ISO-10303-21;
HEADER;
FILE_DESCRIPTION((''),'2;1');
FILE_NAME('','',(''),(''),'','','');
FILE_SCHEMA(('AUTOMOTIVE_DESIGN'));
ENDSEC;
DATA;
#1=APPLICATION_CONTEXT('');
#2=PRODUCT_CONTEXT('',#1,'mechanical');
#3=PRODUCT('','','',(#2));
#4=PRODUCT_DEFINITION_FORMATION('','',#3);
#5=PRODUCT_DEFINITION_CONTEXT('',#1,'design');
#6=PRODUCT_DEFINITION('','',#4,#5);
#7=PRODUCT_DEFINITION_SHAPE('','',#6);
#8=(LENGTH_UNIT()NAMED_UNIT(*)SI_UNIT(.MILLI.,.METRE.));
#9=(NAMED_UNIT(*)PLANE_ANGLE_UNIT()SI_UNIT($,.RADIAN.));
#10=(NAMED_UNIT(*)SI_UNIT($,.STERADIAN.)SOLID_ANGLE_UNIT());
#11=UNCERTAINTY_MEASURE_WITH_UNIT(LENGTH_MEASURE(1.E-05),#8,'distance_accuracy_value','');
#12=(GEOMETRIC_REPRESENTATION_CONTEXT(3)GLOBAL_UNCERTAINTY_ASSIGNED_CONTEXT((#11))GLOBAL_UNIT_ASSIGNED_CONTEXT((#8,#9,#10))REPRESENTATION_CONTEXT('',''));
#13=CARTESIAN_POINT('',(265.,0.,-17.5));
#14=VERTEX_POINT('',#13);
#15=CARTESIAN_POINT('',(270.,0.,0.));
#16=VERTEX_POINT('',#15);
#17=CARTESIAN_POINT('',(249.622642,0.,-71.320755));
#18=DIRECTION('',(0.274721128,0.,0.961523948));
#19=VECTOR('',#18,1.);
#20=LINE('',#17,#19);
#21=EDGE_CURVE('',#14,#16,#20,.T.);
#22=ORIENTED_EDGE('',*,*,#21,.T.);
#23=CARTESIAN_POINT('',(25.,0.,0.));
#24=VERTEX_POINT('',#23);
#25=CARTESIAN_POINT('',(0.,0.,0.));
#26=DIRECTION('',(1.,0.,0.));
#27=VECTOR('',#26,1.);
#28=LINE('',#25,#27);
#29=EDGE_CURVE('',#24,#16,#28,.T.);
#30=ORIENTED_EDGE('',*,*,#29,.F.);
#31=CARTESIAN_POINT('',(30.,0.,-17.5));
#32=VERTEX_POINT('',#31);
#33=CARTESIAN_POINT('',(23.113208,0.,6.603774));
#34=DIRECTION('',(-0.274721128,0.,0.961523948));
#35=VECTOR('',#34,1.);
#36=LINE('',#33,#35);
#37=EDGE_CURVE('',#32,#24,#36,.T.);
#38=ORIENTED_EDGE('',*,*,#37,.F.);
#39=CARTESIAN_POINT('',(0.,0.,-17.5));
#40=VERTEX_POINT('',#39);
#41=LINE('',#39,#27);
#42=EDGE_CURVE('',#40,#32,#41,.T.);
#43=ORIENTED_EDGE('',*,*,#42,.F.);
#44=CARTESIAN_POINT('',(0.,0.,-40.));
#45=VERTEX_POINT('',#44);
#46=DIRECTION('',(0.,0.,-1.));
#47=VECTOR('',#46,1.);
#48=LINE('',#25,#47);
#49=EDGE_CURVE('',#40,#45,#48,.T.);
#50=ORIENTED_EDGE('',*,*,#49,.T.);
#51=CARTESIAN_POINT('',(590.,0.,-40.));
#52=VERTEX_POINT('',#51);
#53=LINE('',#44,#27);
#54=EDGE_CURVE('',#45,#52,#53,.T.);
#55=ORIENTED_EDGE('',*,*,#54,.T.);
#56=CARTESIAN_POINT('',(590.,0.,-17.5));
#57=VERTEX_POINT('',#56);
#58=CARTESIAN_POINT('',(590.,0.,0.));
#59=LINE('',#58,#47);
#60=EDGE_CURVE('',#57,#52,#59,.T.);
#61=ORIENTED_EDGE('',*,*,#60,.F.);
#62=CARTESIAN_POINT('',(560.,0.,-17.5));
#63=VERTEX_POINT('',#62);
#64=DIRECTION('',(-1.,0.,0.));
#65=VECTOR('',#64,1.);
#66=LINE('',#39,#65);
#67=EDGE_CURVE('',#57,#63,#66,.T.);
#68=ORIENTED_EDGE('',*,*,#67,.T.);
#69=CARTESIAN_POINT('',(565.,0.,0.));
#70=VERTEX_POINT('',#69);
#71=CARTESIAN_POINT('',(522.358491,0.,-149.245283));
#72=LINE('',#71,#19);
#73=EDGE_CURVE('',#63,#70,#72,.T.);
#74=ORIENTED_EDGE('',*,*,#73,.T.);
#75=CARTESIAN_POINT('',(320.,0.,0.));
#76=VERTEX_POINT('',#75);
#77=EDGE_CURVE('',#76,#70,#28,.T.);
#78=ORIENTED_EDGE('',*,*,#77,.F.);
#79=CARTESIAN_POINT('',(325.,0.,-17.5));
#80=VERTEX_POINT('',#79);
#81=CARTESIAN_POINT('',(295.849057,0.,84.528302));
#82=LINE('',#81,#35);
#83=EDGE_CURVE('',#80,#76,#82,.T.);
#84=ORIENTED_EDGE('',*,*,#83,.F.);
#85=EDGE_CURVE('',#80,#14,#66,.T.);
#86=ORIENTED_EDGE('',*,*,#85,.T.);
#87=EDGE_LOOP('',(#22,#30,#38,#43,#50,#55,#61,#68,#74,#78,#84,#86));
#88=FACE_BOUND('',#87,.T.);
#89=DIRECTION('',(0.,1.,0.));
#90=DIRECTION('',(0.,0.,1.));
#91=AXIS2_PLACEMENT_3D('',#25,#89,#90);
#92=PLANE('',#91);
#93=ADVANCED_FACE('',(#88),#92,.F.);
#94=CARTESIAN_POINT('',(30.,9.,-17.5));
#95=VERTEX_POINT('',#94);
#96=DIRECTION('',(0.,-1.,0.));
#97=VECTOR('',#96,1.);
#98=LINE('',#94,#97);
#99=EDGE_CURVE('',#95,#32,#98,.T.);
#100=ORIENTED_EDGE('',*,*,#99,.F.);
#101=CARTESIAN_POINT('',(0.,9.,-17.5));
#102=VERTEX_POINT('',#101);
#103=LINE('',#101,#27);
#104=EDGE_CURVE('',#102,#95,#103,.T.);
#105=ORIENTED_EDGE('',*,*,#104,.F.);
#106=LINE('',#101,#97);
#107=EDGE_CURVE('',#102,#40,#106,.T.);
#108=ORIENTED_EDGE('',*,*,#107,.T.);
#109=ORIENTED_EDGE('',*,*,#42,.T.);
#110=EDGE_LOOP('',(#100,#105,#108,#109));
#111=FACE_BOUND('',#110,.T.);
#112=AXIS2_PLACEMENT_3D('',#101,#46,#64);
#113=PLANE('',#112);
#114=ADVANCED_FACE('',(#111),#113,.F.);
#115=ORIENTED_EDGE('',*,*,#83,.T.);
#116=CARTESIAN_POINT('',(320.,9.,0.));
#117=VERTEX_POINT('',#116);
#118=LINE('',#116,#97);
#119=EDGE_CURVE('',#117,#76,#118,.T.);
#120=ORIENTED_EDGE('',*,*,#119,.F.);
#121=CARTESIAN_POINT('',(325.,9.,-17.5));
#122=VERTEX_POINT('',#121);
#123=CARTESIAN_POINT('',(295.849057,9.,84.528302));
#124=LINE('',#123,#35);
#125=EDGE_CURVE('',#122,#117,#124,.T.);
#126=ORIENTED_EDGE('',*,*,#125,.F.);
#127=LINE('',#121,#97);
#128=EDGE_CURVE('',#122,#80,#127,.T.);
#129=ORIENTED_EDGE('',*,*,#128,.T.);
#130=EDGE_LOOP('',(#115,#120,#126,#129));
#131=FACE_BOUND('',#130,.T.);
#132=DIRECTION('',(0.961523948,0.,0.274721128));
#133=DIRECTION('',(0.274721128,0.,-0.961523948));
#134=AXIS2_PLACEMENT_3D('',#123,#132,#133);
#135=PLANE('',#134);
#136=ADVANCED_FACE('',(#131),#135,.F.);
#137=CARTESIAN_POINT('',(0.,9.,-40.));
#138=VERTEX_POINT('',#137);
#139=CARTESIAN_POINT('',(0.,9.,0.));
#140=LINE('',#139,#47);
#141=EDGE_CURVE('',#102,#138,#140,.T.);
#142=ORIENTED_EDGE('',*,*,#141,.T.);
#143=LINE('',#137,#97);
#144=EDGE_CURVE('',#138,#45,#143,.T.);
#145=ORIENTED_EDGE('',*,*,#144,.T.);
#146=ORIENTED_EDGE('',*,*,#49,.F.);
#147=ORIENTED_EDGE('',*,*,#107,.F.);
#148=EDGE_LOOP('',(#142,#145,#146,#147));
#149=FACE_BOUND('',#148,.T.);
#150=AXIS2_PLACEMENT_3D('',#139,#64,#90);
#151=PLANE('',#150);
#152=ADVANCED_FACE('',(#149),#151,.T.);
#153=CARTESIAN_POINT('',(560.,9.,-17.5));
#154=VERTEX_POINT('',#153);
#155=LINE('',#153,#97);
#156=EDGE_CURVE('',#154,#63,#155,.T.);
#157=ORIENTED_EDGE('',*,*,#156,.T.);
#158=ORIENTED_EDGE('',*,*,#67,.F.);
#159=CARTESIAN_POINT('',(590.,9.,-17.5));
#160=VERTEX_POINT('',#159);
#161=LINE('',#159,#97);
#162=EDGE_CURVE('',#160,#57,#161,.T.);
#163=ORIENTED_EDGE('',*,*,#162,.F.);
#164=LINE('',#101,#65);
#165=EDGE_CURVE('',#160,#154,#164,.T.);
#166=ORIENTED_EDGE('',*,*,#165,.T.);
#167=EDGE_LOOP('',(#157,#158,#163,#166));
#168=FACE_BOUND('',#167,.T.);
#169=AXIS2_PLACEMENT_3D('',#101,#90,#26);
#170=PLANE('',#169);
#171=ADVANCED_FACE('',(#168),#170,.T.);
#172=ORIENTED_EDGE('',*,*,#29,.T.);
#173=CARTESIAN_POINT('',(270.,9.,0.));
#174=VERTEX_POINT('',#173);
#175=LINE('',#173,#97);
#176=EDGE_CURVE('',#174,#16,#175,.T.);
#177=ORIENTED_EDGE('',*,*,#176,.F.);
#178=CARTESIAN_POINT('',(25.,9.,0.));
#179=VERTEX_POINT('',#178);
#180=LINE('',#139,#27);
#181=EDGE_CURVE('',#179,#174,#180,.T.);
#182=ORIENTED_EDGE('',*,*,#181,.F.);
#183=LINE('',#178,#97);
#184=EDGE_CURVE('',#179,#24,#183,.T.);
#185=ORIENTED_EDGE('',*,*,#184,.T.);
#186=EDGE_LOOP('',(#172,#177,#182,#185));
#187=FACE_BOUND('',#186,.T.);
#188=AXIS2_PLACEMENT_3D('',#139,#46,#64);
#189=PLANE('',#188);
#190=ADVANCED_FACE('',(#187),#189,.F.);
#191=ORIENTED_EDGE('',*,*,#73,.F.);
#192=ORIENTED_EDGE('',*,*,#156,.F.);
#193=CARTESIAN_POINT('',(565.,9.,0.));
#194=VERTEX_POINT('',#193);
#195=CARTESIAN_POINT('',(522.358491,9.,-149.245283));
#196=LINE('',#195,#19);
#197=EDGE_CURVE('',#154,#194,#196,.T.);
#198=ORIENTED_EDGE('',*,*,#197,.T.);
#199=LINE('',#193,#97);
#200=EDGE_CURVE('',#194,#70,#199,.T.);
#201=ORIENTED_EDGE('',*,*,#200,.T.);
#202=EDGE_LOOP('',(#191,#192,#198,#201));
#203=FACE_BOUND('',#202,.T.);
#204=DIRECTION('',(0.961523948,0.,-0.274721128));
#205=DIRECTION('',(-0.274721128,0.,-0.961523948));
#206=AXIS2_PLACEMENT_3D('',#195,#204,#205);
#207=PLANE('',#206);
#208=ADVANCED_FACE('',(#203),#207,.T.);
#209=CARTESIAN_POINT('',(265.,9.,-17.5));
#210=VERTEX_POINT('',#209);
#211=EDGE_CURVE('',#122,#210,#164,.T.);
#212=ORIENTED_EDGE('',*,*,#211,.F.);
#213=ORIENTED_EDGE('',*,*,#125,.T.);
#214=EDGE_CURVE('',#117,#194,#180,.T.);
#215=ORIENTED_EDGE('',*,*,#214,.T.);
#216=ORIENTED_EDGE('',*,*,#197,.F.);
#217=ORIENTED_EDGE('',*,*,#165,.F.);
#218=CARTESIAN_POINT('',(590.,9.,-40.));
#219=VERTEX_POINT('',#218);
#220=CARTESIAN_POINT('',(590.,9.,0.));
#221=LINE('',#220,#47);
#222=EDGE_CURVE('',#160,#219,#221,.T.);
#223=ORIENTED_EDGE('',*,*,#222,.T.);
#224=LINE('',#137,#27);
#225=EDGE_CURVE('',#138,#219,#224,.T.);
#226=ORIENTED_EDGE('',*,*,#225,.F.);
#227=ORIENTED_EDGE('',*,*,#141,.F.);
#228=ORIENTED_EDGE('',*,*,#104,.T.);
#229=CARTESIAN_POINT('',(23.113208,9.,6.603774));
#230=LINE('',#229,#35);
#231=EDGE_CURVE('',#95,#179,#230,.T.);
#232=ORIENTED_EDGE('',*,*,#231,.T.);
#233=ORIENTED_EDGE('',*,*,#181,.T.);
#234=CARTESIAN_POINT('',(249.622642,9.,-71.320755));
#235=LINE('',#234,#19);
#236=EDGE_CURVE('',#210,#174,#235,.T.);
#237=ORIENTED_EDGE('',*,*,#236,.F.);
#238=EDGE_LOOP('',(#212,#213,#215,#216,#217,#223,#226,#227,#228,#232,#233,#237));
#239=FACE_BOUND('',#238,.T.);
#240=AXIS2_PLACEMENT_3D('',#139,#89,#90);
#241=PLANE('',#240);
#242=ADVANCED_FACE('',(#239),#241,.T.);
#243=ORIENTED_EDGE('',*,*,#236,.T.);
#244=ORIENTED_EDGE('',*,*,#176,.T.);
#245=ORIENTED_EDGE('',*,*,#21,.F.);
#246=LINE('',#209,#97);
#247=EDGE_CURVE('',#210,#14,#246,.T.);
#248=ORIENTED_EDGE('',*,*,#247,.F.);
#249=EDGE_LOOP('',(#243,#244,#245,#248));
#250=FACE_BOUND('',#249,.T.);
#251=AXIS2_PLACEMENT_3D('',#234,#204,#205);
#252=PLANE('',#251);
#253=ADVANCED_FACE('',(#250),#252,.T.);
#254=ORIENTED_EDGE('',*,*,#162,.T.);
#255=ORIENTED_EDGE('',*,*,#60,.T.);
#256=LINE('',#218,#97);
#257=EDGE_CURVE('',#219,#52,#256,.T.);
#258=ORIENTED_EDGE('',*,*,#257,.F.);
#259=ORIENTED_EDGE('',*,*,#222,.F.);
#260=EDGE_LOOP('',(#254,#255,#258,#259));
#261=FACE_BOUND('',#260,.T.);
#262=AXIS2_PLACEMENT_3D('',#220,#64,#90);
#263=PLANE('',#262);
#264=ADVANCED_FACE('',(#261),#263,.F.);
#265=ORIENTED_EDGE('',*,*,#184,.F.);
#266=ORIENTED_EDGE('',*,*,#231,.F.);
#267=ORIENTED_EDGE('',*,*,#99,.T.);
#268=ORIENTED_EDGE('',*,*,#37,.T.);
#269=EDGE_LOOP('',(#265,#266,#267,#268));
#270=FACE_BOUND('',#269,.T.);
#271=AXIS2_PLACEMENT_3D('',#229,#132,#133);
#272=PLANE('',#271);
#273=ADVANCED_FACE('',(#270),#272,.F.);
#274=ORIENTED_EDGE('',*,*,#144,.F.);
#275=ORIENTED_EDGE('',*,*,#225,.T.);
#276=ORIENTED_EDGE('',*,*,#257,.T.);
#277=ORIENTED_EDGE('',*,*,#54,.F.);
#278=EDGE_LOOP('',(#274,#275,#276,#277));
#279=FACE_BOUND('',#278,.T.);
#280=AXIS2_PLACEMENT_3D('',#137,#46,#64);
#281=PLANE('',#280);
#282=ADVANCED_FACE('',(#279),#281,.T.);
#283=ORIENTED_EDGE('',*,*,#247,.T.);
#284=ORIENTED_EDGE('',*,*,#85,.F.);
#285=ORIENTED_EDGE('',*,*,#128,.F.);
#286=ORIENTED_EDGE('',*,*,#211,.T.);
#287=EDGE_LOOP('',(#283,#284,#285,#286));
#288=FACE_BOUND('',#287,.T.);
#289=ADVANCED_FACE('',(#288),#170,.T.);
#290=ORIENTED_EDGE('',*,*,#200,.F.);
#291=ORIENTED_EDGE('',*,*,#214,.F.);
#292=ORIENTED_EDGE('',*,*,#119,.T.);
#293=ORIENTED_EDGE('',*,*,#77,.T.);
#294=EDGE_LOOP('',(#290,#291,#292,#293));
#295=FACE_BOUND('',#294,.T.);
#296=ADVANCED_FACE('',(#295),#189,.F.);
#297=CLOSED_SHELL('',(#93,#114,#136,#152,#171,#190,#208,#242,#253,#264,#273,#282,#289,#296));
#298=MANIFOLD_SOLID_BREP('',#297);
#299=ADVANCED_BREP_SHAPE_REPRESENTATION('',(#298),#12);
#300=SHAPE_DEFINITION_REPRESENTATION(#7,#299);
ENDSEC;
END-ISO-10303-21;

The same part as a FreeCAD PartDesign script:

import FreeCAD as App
import Part
import Sketcher


def add_polygon(sketch, points):
    """Adds a closed chain of lines whose ends are joined by coincident constraints."""
    first, n = sketch.GeometryCount, len(points)
    for a, b in zip(points, points[1:] + points[:1]):
        sketch.addGeometry(Part.LineSegment(App.Vector(*a, 0), App.Vector(*b, 0)), False)
    for i in range(n):
        sketch.addConstraint(Sketcher.Constraint("Coincident", first + i, 2, first + (i + 1) % n, 1))

doc = App.newDocument("Part")
body = doc.addObject("PartDesign::Body", "Body")

sketch1 = body.newObject("Sketcher::SketchObject", "Sketch")
sketch1.AttachmentSupport = (doc.getObject("XZ_Plane"), [""])
sketch1.MapMode = "FlatFace"
add_polygon(sketch1, [(0, -17.5), (30, -17.5), (25, 0), (270, 0), (265, -17.5), (325, -17.5), (320, 0), (565, 0), (560, -17.5), (590, -17.5), (590, -40), (0, -40)])
sketch1.addConstraint([
    Sketcher.Constraint("Horizontal", 0),
    Sketcher.Constraint("Horizontal", 2),
    Sketcher.Constraint("Horizontal", 4),
    Sketcher.Constraint("Horizontal", 6),
    Sketcher.Constraint("Horizontal", 8),
    Sketcher.Constraint("Vertical", 9),
    Sketcher.Constraint("Horizontal", 10),
    Sketcher.Constraint("Vertical", 11),
    Sketcher.Constraint("PointOnObject", 1, 2, -1),
    Sketcher.Constraint("PointOnObject", 5, 2, -1),
    Sketcher.Constraint("PointOnObject", 10, 2, -2),
    Sketcher.Constraint("Parallel", 1, 5),
    Sketcher.Constraint("Parallel", 3, 7),
    Sketcher.Constraint("Horizontal", 0, 2, 3, 2),
    Sketcher.Constraint("Horizontal", 4, 2, 7, 2),
    Sketcher.Constraint("Equal", 2, 6),
    Sketcher.Constraint("Equal", 0, 8),
    Sketcher.Constraint("Equal", 1, 3),
    Sketcher.Constraint("DistanceX", 0, 1, 0, 2, 30.0),
    Sketcher.Constraint("DistanceX", 2, 1, 2, 2, 245.0),
    Sketcher.Constraint("DistanceX", 4, 1, 4, 2, 60.0),
    Sketcher.Constraint("DistanceX", 10, 2, 10, 1, 590.0),
    Sketcher.Constraint("DistanceY", 9, 2, 9, 1, 22.5),
    Sketcher.Constraint("DistanceY", 9, 2, -1, 1, 40.0),
])
pad1 = body.newObject("PartDesign::Pad", "Pad")
pad1.Profile = sketch1
pad1.Length = 9
pad1.Reversed = True

doc.recompute()
